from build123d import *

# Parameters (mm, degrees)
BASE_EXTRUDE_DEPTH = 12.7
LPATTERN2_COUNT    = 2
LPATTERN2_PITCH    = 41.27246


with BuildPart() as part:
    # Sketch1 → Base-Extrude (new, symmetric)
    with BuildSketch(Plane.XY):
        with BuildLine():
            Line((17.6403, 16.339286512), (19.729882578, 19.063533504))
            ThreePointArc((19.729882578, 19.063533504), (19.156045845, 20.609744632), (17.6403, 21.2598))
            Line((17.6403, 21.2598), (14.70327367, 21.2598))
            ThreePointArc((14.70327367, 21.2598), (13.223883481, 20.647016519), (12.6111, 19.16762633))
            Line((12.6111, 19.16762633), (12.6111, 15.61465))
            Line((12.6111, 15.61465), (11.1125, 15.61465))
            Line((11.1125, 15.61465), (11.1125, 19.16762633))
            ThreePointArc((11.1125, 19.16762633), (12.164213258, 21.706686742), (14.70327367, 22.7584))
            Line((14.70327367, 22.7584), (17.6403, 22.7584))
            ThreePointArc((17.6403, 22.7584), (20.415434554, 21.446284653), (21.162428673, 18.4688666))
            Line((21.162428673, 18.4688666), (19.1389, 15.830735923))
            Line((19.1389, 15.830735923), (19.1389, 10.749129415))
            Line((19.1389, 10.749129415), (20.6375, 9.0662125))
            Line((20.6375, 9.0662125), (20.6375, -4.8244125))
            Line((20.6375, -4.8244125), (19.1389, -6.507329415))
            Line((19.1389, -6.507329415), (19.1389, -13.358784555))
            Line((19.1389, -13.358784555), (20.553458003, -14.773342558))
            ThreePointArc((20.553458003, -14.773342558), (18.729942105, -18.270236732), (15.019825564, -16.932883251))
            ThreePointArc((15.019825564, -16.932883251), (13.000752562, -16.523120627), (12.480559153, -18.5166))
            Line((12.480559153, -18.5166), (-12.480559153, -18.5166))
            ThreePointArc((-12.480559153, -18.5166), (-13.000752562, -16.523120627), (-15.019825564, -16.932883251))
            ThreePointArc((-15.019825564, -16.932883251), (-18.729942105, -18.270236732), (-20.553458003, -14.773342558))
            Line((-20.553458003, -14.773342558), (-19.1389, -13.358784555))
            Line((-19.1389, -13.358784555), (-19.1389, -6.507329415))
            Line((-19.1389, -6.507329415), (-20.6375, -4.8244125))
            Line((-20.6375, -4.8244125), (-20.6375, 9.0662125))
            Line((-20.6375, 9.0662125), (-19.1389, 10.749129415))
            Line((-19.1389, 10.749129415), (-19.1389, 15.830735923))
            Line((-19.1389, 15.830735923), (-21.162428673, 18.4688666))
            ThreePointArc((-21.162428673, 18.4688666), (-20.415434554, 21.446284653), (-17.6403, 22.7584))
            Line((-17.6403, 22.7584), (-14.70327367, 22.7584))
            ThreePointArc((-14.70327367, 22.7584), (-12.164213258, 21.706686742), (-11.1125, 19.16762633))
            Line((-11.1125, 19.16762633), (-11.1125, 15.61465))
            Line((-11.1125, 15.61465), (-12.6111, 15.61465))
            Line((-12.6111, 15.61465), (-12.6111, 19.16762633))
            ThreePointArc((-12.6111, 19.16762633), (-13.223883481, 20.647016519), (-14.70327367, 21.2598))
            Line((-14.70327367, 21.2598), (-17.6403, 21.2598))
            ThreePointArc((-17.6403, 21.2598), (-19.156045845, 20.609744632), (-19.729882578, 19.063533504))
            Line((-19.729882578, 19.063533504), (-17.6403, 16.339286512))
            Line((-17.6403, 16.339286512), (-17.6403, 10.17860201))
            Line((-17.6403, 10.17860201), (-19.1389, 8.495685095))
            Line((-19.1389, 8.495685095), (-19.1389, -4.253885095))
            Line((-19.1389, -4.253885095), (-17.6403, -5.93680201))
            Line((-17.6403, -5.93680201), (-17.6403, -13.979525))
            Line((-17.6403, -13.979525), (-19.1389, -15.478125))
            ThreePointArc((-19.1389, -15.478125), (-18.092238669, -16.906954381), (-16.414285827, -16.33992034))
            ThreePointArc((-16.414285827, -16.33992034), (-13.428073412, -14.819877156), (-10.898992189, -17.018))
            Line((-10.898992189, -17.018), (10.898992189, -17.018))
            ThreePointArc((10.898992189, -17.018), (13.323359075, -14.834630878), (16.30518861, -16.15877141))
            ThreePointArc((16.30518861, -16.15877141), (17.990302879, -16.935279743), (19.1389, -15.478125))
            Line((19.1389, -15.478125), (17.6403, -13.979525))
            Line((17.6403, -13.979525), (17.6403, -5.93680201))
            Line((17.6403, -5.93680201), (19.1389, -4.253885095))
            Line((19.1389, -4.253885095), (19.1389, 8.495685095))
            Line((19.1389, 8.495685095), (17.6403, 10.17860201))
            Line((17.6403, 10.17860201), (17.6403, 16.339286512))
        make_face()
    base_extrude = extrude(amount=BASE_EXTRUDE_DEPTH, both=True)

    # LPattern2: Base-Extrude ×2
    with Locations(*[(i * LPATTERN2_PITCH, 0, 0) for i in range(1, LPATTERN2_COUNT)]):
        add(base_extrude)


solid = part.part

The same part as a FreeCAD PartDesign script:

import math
import FreeCAD as App
import Part
import Sketcher

V = App.Vector
Q = App.Units.Quantity

doc = App.newDocument("Part")
body = doc.addObject("PartDesign::Body", "Body")

sketch1 = body.newObject("Sketcher::SketchObject", "Sketch")
sketch1.AttachmentSupport = (doc.getObject("XY_Plane"), [""])
sketch1.MapMode = "FlatFace"
sketch1.addGeometry([
    Part.LineSegment(V(19.729883, 19.063534, 0), V(17.6403, 16.339287, 0)),
    Part.LineSegment(V(17.6403, 16.339287, 0), V(17.6403, 10.178602, 0)),
    Part.LineSegment(V(17.6403, 10.178602, 0), V(19.1389, 8.495685, 0)),
    Part.LineSegment(V(19.1389, 8.495685, 0), V(19.1389, -4.253885, 0)),
    Part.LineSegment(V(19.1389, -4.253885, 0), V(17.6403, -5.936802, 0)),
    Part.LineSegment(V(17.6403, -5.936802, 0), V(17.6403, -13.979525, 0)),
    Part.LineSegment(V(17.6403, -13.979525, 0), V(19.1389, -15.478125, 0)),
    Part.ArcOfCircle(Part.Circle(V(17.6403, -15.478125, 0), V(0, 0, 1), 1.4986), math.radians(-152.987287), math.radians(0)),
    Part.ArcOfCircle(Part.Circle(V(13.793811, -17.794679, 0), V(0, 0, 1), 2.9972), math.radians(33.080158), math.radians(164.981274)),
    Part.LineSegment(V(10.898992, -17.018, 0), V(-10.898992, -17.018, 0)),
    Part.ArcOfCircle(Part.Circle(V(-13.793811, -17.794679, 0), V(0, 0, 1), 2.9972), math.radians(15.018726), math.radians(150.963124)),
    Part.ArcOfCircle(Part.Circle(V(-17.6403, -15.478125, 0), V(0, 0, 1), 1.4986), math.radians(180), math.radians(324.895679)),
    Part.LineSegment(V(-19.1389, -15.478125, 0), V(-17.6403, -13.979525, 0)),
    Part.LineSegment(V(-17.6403, -13.979525, 0), V(-17.6403, -5.936802, 0)),
    Part.LineSegment(V(-17.6403, -5.936802, 0), V(-19.1389, -4.253885, 0)),
    Part.LineSegment(V(-19.1389, -4.253885, 0), V(-19.1389, 8.495685, 0)),
    Part.LineSegment(V(-19.1389, 8.495685, 0), V(-17.6403, 10.178602, 0)),
    Part.LineSegment(V(-17.6403, 10.178602, 0), V(-17.6403, 16.339287, 0)),
    Part.LineSegment(V(-17.6403, 16.339287, 0), V(-19.729883, 19.063534, 0)),
    Part.ArcOfCircle(Part.Circle(V(-17.6403, 19.167626, 0), V(0, 0, 1), 2.092174), math.radians(90), math.radians(182.851839)),
    Part.LineSegment(V(-17.6403, 21.2598, 0), V(-14.703274, 21.2598, 0)),
    Part.ArcOfCircle(Part.Circle(V(-14.703274, 19.167626, 0), V(0, 0, 1), 2.092174), math.radians(0), math.radians(90)),
    Part.LineSegment(V(-12.6111, 19.167626, 0), V(-12.6111, 15.61465, 0)),
    Part.LineSegment(V(-12.6111, 15.61465, 0), V(-11.1125, 15.61465, 0)),
    Part.LineSegment(V(-11.1125, 15.61465, 0), V(-11.1125, 19.167626, 0)),
    Part.ArcOfCircle(Part.Circle(V(-14.703274, 19.167626, 0), V(0, 0, 1), 3.590774), math.radians(0), math.radians(90)),
    Part.LineSegment(V(-14.703274, 22.7584, 0), V(-17.6403, 22.7584, 0)),
    Part.ArcOfCircle(Part.Circle(V(-17.6403, 19.167626, 0), V(0, 0, 1), 3.590774), math.radians(90), math.radians(191.221279)),
    Part.LineSegment(V(-21.162429, 18.468867, 0), V(-19.1389, 15.830736, 0)),
    Part.LineSegment(V(-19.1389, 15.830736, 0), V(-19.1389, 10.749129, 0)),
    Part.LineSegment(V(-19.1389, 10.749129, 0), V(-20.6375, 9.066213, 0)),
    Part.LineSegment(V(-20.6375, 9.066213, 0), V(-20.6375, -4.824413, 0)),
    Part.LineSegment(V(-20.6375, -4.824413, 0), V(-19.1389, -6.507329, 0)),
    Part.LineSegment(V(-19.1389, -6.507329, 0), V(-19.1389, -13.358785, 0)),
    Part.LineSegment(V(-19.1389, -13.358785, 0), V(-20.553458, -14.773343, 0)),
    Part.ArcOfCircle(Part.Circle(V(-17.6403, -15.478125, 0), V(0, 0, 1), 2.9972), math.radians(166.399715), math.radians(330.963124)),
    Part.ArcOfCircle(Part.Circle(V(-13.793811, -17.794679, 0), V(0, 0, 1), 1.4986), math.radians(-28.798488), math.radians(144.895679)),
    Part.LineSegment(V(-12.480559, -18.5166, 0), V(12.480559, -18.5166, 0)),
    Part.ArcOfCircle(Part.Circle(V(13.793811, -17.794679, 0), V(0, 0, 1), 1.4986), math.radians(35.104321), math.radians(208.798488)),
    Part.ArcOfCircle(Part.Circle(V(17.6403, -15.478125, 0), V(0, 0, 1), 2.9972), math.radians(-150.963124), math.radians(13.600285)),
    Part.LineSegment(V(20.553458, -14.773343, 0), V(19.1389, -13.358785, 0)),
    Part.LineSegment(V(19.1389, -13.358785, 0), V(19.1389, -6.507329, 0)),
    Part.LineSegment(V(19.1389, -6.507329, 0), V(20.6375, -4.824413, 0)),
    Part.LineSegment(V(20.6375, -4.824413, 0), V(20.6375, 9.066213, 0)),
    Part.LineSegment(V(20.6375, 9.066213, 0), V(19.1389, 10.749129, 0)),
    Part.LineSegment(V(19.1389, 10.749129, 0), V(19.1389, 15.830736, 0)),
    Part.LineSegment(V(19.1389, 15.830736, 0), V(21.162429, 18.468867, 0)),
    Part.ArcOfCircle(Part.Circle(V(17.6403, 19.167626, 0), V(0, 0, 1), 3.590774), math.radians(-11.221279), math.radians(90)),
    Part.LineSegment(V(17.6403, 22.7584, 0), V(14.703274, 22.7584, 0)),
    Part.ArcOfCircle(Part.Circle(V(14.703274, 19.167626, 0), V(0, 0, 1), 3.590774), math.radians(90), math.radians(180)),
    Part.LineSegment(V(11.1125, 19.167626, 0), V(11.1125, 15.61465, 0)),
    Part.LineSegment(V(11.1125, 15.61465, 0), V(12.6111, 15.61465, 0)),
    Part.LineSegment(V(12.6111, 15.61465, 0), V(12.6111, 19.167626, 0)),
    Part.ArcOfCircle(Part.Circle(V(14.703274, 19.167626, 0), V(0, 0, 1), 2.092174), math.radians(90), math.radians(180)),
    Part.LineSegment(V(14.703274, 21.2598, 0), V(17.6403, 21.2598, 0)),
    Part.ArcOfCircle(Part.Circle(V(17.6403, 19.167626, 0), V(0, 0, 1), 2.092174), math.radians(-2.851839), math.radians(90)),
], False)
sketch1.addConstraint([
    Sketcher.Constraint("Coincident", 0, 2, 1, 1),
    Sketcher.Constraint("Coincident", 1, 2, 2, 1),
    Sketcher.Constraint("Coincident", 2, 2, 3, 1),
    Sketcher.Constraint("Coincident", 3, 2, 4, 1),
    Sketcher.Constraint("Coincident", 4, 2, 5, 1),
    Sketcher.Constraint("Coincident", 5, 2, 6, 1),
    Sketcher.Constraint("Coincident", 6, 2, 7, 2),
    Sketcher.Constraint("Coincident", 7, 1, 8, 1),
    Sketcher.Constraint("Coincident", 8, 2, 9, 1),
    Sketcher.Constraint("Coincident", 9, 2, 10, 1),
    Sketcher.Constraint("Coincident", 10, 2, 11, 2),
    Sketcher.Constraint("Coincident", 11, 1, 12, 1),
    Sketcher.Constraint("Coincident", 12, 2, 13, 1),
    Sketcher.Constraint("Coincident", 13, 2, 14, 1),
    Sketcher.Constraint("Coincident", 14, 2, 15, 1),
    Sketcher.Constraint("Coincident", 15, 2, 16, 1),
    Sketcher.Constraint("Coincident", 16, 2, 17, 1),
    Sketcher.Constraint("Coincident", 17, 2, 18, 1),
    Sketcher.Constraint("Coincident", 18, 2, 19, 2),
    Sketcher.Constraint("Tangent", 19, 1, 20, 1),
    Sketcher.Constraint("Tangent", 20, 2, 21, 2),
    Sketcher.Constraint("Tangent", 21, 1, 22, 1),
    Sketcher.Constraint("Coincident", 22, 2, 23, 1),
    Sketcher.Constraint("Coincident", 23, 2, 24, 1),
    Sketcher.Constraint("Tangent", 24, 2, 25, 1),
    Sketcher.Constraint("Tangent", 25, 2, 26, 1),
    Sketcher.Constraint("Tangent", 26, 2, 27, 1),
    Sketcher.Constraint("Coincident", 27, 2, 28, 1),
    Sketcher.Constraint("Coincident", 28, 2, 29, 1),
    Sketcher.Constraint("Coincident", 29, 2, 30, 1),
    Sketcher.Constraint("Coincident", 30, 2, 31, 1),
    Sketcher.Constraint("Coincident", 31, 2, 32, 1),
    Sketcher.Constraint("Coincident", 32, 2, 33, 1),
    Sketcher.Constraint("Coincident", 33, 2, 34, 1),
    Sketcher.Constraint("Coincident", 34, 2, 35, 1),
    Sketcher.Constraint("Coincident", 35, 2, 36, 2),
    Sketcher.Constraint("Coincident", 36, 1, 37, 1),
    Sketcher.Constraint("Coincident", 37, 2, 38, 2),
    Sketcher.Constraint("Coincident", 38, 1, 39, 1),
    Sketcher.Constraint("Coincident", 39, 2, 40, 1),
    Sketcher.Constraint("Coincident", 40, 2, 41, 1),
    Sketcher.Constraint("Coincident", 41, 2, 42, 1),
    Sketcher.Constraint("Coincident", 42, 2, 43, 1),
    Sketcher.Constraint("Coincident", 43, 2, 44, 1),
    Sketcher.Constraint("Coincident", 44, 2, 45, 1),
    Sketcher.Constraint("Coincident", 45, 2, 46, 1),
    Sketcher.Constraint("Coincident", 46, 2, 47, 1),
    Sketcher.Constraint("Tangent", 47, 2, 48, 1),
    Sketcher.Constraint("Tangent", 48, 2, 49, 1),
    Sketcher.Constraint("Tangent", 49, 2, 50, 1),
    Sketcher.Constraint("Coincident", 50, 2, 51, 1),
    Sketcher.Constraint("Coincident", 51, 2, 52, 1),
    Sketcher.Constraint("Tangent", 52, 2, 53, 2),
    Sketcher.Constraint("Tangent", 53, 1, 54, 1),
    Sketcher.Constraint("Tangent", 54, 2, 55, 2),
    Sketcher.Constraint("Coincident", 55, 1, 0, 1),
    Sketcher.Constraint("Vertical", 1),
    Sketcher.Constraint("Vertical", 3),
    Sketcher.Constraint("Vertical", 5),
    Sketcher.Constraint("Horizontal", 9),
    Sketcher.Constraint("Vertical", 13),
    Sketcher.Constraint("Vertical", 15),
    Sketcher.Constraint("Vertical", 17),
    Sketcher.Constraint("Horizontal", 20),
    Sketcher.Constraint("Vertical", 22),
    Sketcher.Constraint("Horizontal", 23),
    Sketcher.Constraint("Vertical", 24),
    Sketcher.Constraint("Horizontal", 26),
    Sketcher.Constraint("Vertical", 29),
    Sketcher.Constraint("Vertical", 31),
    Sketcher.Constraint("Vertical", 33),
    Sketcher.Constraint("Horizontal", 37),
    Sketcher.Constraint("Vertical", 41),
    Sketcher.Constraint("Vertical", 43),
    Sketcher.Constraint("Vertical", 45),
    Sketcher.Constraint("Horizontal", 48),
    Sketcher.Constraint("Vertical", 50),
    Sketcher.Constraint("Horizontal", 51),
    Sketcher.Constraint("Vertical", 52),
    Sketcher.Constraint("Horizontal", 54),
    Sketcher.Constraint("Coincident", 25, 3, 21, 3),
    Sketcher.Constraint("Coincident", 27, 3, 19, 3),
    Sketcher.Constraint("Coincident", 35, 3, 11, 3),
    Sketcher.Constraint("Coincident", 36, 3, 10, 3),
    Sketcher.Constraint("Coincident", 38, 3, 8, 3),
    Sketcher.Constraint("Coincident", 39, 3, 7, 3),
    Sketcher.Constraint("Coincident", 53, 3, 49, 3),
    Sketcher.Constraint("Coincident", 55, 3, 47, 3),
    Sketcher.Constraint("Equal", 8, 10),
    Sketcher.Constraint("Equal", 7, 11),
    Sketcher.Constraint("Equal", 19, 21),
    Sketcher.Constraint("Equal", 10, 35),
    Sketcher.Constraint("Equal", 11, 36),
    Sketcher.Constraint("Equal", 36, 38),
    Sketcher.Constraint("Equal", 35, 39),
    Sketcher.Constraint("Equal", 27, 47),
    Sketcher.Constraint("Equal", 47, 49),
    Sketcher.Constraint("Equal", 21, 53),
    Sketcher.Constraint("Symmetric", 8, 3, 10, 3, -2),
    Sketcher.Constraint("Symmetric", 7, 3, 11, 3, -2),
    Sketcher.Constraint("Symmetric", 19, 3, 47, 3, -2),
    Sketcher.Constraint("Symmetric", 5, 2, 12, 2, -2),
    Sketcher.Constraint("Symmetric", 3, 2, 14, 2, -2),
    Sketcher.Constraint("Symmetric", 1, 2, 16, 2, -2),
    Sketcher.Constraint("Symmetric", 33, 2, 40, 2, -2),
    Sketcher.Constraint("Symmetric", 31, 2, 42, 2, -2),
    Sketcher.Constraint("Symmetric", 29, 2, 44, 2, -2),
    Sketcher.Constraint("Symmetric", 23, 2, 50, 2, -2),
    Sketcher.Constraint("Perpendicular", 6, 12),
    Sketcher.Constraint("Parallel", 2, 14),
    Sketcher.Constraint("Parallel", 4, 16),
    Sketcher.Constraint("Parallel", 18, 28),
    Sketcher.Constraint("Parallel", 16, 30),
    Sketcher.Constraint("Parallel", 14, 32),
    Sketcher.Constraint("Parallel", 12, 34),
    Sketcher.Constraint("Perpendicular", 34, 40),
    Sketcher.Constraint("Parallel", 30, 42),
    Sketcher.Constraint("Parallel", 32, 44),
    Sketcher.Constraint("Parallel", 0, 46),
    Sketcher.Constraint("Horizontal", 39, 3, 6, 2),
    Sketcher.Constraint("Horizontal", 6, 2, 11, 1),
    Sketcher.Constraint("Horizontal", 4, 2, 13, 2),
    Sketcher.Constraint("Horizontal", 0, 2, 17, 2),
    Sketcher.Constraint("Horizontal", 28, 2, 45, 2),
    Sketcher.Constraint("Horizontal", 27, 2, 46, 2),
    Sketcher.Constraint("Vertical", 11, 3, 19, 3),
    Sketcher.Constraint("Vertical", 55, 3, 0, 2),
    Sketcher.Constraint("Vertical", 1, 2, 4, 2),
    Sketcher.Constraint("Vertical", 3, 2, 6, 2),
    Sketcher.Constraint("Vertical", 15, 2, 28, 2),
    Sketcher.Constraint("Vertical", 29, 2, 32, 2),
    Sketcher.Constraint("Equal", 16, 30),
    Sketcher.Constraint("Radius", 7, Q("0.059 in")),
    Sketcher.Constraint("Radius", 8, Q("0.118 in")),
    Sketcher.Constraint("DistanceX", 23, 1, 23, 2, Q("0.059 in")),
    Sketcher.Constraint("DistanceY", 31, 2, 31, 1, Q("0.546875 in")),
    Sketcher.Constraint("DistanceY", 8, 2, -1, 1, Q("0.67 in")),
    Sketcher.Constraint("DistanceY", 7, 3, -1, 1, Q("0.609375 in")),
    Sketcher.Constraint("DistanceY", -1, 1, 19, 1, Q("0.837 in")),
    Sketcher.Constraint("DistanceX", 23, 2, -1, 1, Q("0.4375 in")),
    Sketcher.Constraint("DistanceX", 30, 2, -1, 1, Q("0.8125 in")),
    Sketcher.Constraint("DistanceY", 36, 1, -1, 1, Q("0.729 in")),
    Sketcher.Constraint("Radius", 19, 2.092174),
    Sketcher.Constraint("DistanceX", 37, 1, 37, 2, 24.961118),
    Sketcher.Constraint("DistanceY", 3, 2, 3, 1, 12.74957),
    Sketcher.Constraint("DistanceX", 9, 2, 9, 1, 21.797984),
    Sketcher.Constraint("DistanceY", 1, 2, 1, 1, 6.160685),
    Sketcher.Constraint("DistanceY", 5, 2, 5, 1, 8.042723),
    Sketcher.Constraint("DistanceY", 22, 2, 22, 1, 3.552976),
    Sketcher.Constraint("DistanceY", 29, 2, 29, 1, 5.081607),
    Sketcher.Constraint("DistanceY", 33, 2, 33, 1, 6.851455),
    Sketcher.Constraint("DistanceX", 27, 2, -1, 1, 21.162429),
    Sketcher.Constraint("DistanceY", -1, 1, 29, 2, 10.749129),
    Sketcher.Constraint("DistanceY", 32, 2, -1, 1, 6.507329),
])
pad1 = body.newObject("PartDesign::Pad", "Pad")
pad1.Profile = sketch1
pad1.Length = Q("1 in")
pad1.Midplane = True
doc.recompute()

linearpattern = body.newObject("PartDesign::LinearPattern", "LinearPattern")
linearpattern.Originals = [pad1]
linearpattern.Direction = (doc.getObject("X_Axis"), [""])
linearpattern.Mode = "offset"
linearpattern.Offset = Q("1.6249 in")
linearpattern.Occurrences = 2
body.Tip = linearpattern

doc.recompute()
